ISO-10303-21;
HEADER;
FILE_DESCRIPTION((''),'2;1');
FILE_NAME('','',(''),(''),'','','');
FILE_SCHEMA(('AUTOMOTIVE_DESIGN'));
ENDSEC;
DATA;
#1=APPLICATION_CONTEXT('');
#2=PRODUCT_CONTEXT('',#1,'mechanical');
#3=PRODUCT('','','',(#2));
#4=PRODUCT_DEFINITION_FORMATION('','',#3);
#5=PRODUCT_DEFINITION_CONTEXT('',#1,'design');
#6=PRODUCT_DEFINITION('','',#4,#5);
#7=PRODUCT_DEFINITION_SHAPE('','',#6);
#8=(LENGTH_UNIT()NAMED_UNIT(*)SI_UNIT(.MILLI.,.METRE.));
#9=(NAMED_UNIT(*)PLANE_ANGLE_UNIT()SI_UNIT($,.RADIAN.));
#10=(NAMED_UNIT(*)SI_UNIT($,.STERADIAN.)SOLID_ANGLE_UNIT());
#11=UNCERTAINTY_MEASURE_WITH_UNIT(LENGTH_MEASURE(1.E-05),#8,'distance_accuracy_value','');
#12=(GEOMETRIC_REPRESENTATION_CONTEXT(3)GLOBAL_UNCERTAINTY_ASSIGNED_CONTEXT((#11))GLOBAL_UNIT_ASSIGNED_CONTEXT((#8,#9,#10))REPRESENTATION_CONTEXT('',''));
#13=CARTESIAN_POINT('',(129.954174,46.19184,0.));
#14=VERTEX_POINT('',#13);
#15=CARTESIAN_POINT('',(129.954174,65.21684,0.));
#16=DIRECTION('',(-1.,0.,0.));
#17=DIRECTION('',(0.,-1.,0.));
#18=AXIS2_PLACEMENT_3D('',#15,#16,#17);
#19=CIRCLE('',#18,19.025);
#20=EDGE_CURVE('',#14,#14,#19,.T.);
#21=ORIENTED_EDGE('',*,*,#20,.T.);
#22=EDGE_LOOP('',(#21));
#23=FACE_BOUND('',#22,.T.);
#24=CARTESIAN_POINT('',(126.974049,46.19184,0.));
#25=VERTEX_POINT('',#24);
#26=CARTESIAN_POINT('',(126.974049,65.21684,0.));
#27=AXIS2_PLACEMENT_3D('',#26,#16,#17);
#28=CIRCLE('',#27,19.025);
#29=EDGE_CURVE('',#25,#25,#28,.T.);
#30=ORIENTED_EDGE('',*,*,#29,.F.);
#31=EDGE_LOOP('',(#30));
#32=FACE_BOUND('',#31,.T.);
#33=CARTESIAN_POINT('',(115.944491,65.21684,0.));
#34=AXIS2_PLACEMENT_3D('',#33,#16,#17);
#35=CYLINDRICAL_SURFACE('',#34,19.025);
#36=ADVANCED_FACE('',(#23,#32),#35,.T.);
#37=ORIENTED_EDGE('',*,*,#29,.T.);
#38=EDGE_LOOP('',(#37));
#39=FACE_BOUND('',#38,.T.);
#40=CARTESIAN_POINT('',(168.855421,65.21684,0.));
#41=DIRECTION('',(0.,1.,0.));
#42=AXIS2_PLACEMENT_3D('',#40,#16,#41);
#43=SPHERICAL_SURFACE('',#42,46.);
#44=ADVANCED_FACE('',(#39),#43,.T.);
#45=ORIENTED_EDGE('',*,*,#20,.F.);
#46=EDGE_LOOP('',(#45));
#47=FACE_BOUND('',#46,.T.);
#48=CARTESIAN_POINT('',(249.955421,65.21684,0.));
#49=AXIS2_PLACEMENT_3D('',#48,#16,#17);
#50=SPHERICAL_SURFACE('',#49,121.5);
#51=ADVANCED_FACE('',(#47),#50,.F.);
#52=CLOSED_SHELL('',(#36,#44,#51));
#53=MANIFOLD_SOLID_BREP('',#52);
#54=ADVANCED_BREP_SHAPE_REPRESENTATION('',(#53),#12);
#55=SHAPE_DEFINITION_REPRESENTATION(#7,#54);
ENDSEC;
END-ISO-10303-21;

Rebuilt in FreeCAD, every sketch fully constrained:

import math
import FreeCAD as App
import Part
import Sketcher
from FreeCAD import Vector
Q = App.Units.Quantity

doc = App.newDocument("Part")
body = doc.addObject("PartDesign::Body", "Body")

sketch1 = body.newObject("Sketcher::SketchObject", "Sketch")
sketch1.AttachmentSupport = (doc.getObject("XY_Plane"), [""])
sketch1.MapMode = "FlatFace"
sketch1.addGeometry([
    Part.LineSegment(Vector(129.954174, 84.24184, 0), Vector(126.974049, 84.24184, 0)),
    Part.ArcOfCircle(Part.Circle(Vector(168.855421, 65.21684, 0), Vector(0, 0, 1), 46), math.radians(155.569638), math.radians(180)),
    Part.LineSegment(Vector(122.855421, 65.21684, 0), Vector(128.455421, 65.21684, 0)),
    Part.ArcOfCircle(Part.Circle(Vector(249.955421, 65.21684, 0), Vector(0, 0, 1), 121.5), math.radians(170.991304), math.radians(180)),
], False)
sketch1.addGeometry(Part.LineSegment(Vector(122.855421, 65.21684, 0), Vector(249.955421, 65.21684, 0)), True)
sketch1.addConstraint([
    Sketcher.Constraint("Coincident", 0, 2, 1, 1),
    Sketcher.Constraint("Coincident", 1, 2, 2, 1),
    Sketcher.Constraint("Coincident", 2, 2, 3, 2),
    Sketcher.Constraint("Coincident", 3, 1, 0, 1),
    Sketcher.Constraint("Horizontal", 0),
    Sketcher.Constraint("Horizontal", 2),
    Sketcher.Constraint("Horizontal", 4),
    Sketcher.Constraint("Coincident", 4, 1, 1, 2),
    Sketcher.Constraint("Coincident", 4, 2, 3, 3),
    Sketcher.Constraint("Horizontal", 1, 3, 3, 3),
    Sketcher.Constraint("Radius", 1, Q("46 mm")),
    Sketcher.Constraint("Radius", 3, Q("121.5 mm")),
    Sketcher.Constraint("DistanceX", 2, 1, 2, 2, Q("5.6 mm")),
    Sketcher.Constraint("DistanceY", 1, 3, 0, 2, Q("19.025 mm")),
    Sketcher.Constraint("DistanceX", -1, 1, 1, 3, Q("168.855421 mm")),
    Sketcher.Constraint("DistanceY", -1, 1, 1, 3, Q("65.21684 mm")),
])
revolution = body.newObject("PartDesign::Revolution", "Revolution")
revolution.Profile = sketch1
revolution.ReferenceAxis = (sketch1, ["Axis0"])
revolution.Angle = 360

doc.recompute()
